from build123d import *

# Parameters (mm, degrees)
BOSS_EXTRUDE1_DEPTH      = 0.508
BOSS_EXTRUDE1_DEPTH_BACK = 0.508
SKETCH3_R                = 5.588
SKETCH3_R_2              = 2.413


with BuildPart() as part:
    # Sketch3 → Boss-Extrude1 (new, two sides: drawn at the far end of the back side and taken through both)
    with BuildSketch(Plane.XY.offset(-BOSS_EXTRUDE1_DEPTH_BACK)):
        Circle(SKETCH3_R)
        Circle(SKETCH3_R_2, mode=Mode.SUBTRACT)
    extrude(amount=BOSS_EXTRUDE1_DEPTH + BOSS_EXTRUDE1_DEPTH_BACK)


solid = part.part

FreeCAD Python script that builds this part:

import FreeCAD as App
import Part
import Sketcher

V = App.Vector
Q = App.Units.Quantity

doc = App.newDocument("Part")
body = doc.addObject("PartDesign::Body", "Body")

sketch1 = body.newObject("Sketcher::SketchObject", "Sketch")
sketch1.AttachmentSupport = (doc.getObject("XY_Plane"), [""])
sketch1.MapMode = "FlatFace"
sketch1.addGeometry(Part.Circle(V(0, 0, 0), V(0, 0, 1), 5.6), False)
sketch1.addGeometry(Part.Circle(V(0, 0, 0), V(0, 0, 1), 2.4), False)
sketch1.addConstraint(Sketcher.Constraint("Coincident", 0, 3, -1, 1))
sketch1.addConstraint(Sketcher.Constraint("Coincident", 1, 3, -1, 1))
sketch1.addConstraint(Sketcher.Constraint("Diameter", 0, Q("0.44 in")))
sketch1.addConstraint(Sketcher.Constraint("Diameter", 1, Q("0.19 in")))
pad1 = body.newObject("PartDesign::Pad", "Pad")
pad1.Profile = sketch1
pad1.Type = "TwoLengths"
pad1.Length = Q("0.02 in")
pad1.Length2 = Q("0.02 in")

doc.recompute()
